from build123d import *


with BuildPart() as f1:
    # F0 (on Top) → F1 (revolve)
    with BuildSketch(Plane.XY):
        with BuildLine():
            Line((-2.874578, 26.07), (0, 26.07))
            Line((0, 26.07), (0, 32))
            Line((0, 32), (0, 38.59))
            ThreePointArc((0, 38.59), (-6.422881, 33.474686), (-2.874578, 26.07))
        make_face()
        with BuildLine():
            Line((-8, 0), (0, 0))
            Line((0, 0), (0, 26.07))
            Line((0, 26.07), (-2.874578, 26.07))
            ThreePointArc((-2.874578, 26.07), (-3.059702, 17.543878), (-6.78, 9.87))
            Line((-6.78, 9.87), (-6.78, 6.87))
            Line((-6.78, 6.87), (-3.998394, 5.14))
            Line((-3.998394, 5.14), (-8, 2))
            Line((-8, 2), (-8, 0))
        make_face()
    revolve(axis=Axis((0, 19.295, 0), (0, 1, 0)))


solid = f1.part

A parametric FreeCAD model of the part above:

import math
import FreeCAD as App
import Part
import Sketcher

V = App.Vector
Q = App.Units.Quantity

doc = App.newDocument("Part")
params = doc.addObject("Spreadsheet::Sheet", "Params")
for row, (alias, value) in enumerate([
    ("sketch1_radius", "20.000002 mm"),
    ("sketch1_width", "8 mm"),
    ("sketch1_height", "3 mm"),
    ("sketch1_height2", "2 mm"),
    ("sketch1_radius2", "6.59 mm"),
    ("revolution_angle", "360 deg"),
], start=1):
    params.set(f"A{row}", alias)
    params.set(f"B{row}", "=" + value)
    params.setAlias(f"B{row}", alias)

body = doc.addObject("PartDesign::Body", "Body")

# Sketch on XY plane
sketch1 = doc.addObject("Sketcher::SketchObject", "Sketch")
body.addObject(sketch1)
sketch1.AttachmentSupport = (doc.XY_Plane, [""])
sketch1.MapMode = "FlatFace"
sketch1.addGeometry([
    Part.ArcOfCircle(Part.Circle(V(0, 32, 0), V(0, 0, 1), 6.6), math.radians(90), math.radians(244)),  # 0
    Part.ArcOfCircle(Part.Circle(V(-22.5, 22.2, 0), V(0, 0, 1), 20), math.radians(-38), math.radians(11)),  # 1
    Part.LineSegment(V(-6.8, 9.9, 0), V(-6.8, 6.9, 0)),  # 2
    Part.LineSegment(V(-6.8, 6.9, 0), V(-4, 5.1, 0)),  # 3
    Part.LineSegment(V(-4, 5.1, 0), V(-8, 2, 0)),  # 4
    Part.LineSegment(V(-8, 2, 0), V(-8, 0, 0)),  # 5
    Part.LineSegment(V(-8, 0, 0), V(0, 0, 0)),  # 6
    Part.LineSegment(V(0, 0, 0), V(0, 38.6, 0)),  # 7
], False)
sketch1.addConstraint([
    Sketcher.Constraint("Coincident", 0, 2, 1, 2),
    Sketcher.Constraint("Coincident", 1, 1, 2, 1),
    Sketcher.Constraint("Coincident", 2, 2, 3, 1),
    Sketcher.Constraint("Coincident", 3, 2, 4, 1),
    Sketcher.Constraint("Coincident", 4, 2, 5, 1),
    Sketcher.Constraint("Coincident", 5, 2, 6, 1),
    Sketcher.Constraint("Coincident", 6, 2, 7, 1),
    Sketcher.Constraint("Coincident", 7, 2, 0, 1),
    Sketcher.Constraint("Vertical", 2),
    Sketcher.Constraint("Vertical", 5),
    Sketcher.Constraint("Horizontal", 6),
    Sketcher.Constraint("Vertical", 7),
    Sketcher.Constraint("Coincident", 6, 2, -1, 1),
    Sketcher.Constraint("PointOnObject", 0, 3, -2),
    Sketcher.Constraint("Radius", 1, Q("20.000002 mm")),
    Sketcher.Constraint("DistanceX", 6, 1, 6, 2, Q("8 mm")),
    Sketcher.Constraint("DistanceY", 2, 2, 2, 1, Q("3 mm")),
    Sketcher.Constraint("DistanceY", 5, 2, 5, 1, Q("2 mm")),
    Sketcher.Constraint("Radius", 0, Q("6.59 mm")),
    Sketcher.Constraint("DistanceY", -1, 1, 0, 3, Q("32 mm")),
    Sketcher.Constraint("DistanceY", 1, 1, 0, 2, Q("16.2 mm")),
    Sketcher.Constraint("DistanceY", -1, 1, 0, 2, Q("26.07 mm")),
    Sketcher.Constraint("DistanceX", 1, 1, -1, 1, Q("6.78 mm")),
    Sketcher.Constraint("DistanceY", -1, 1, 3, 2, Q("5.14 mm")),
    Sketcher.Constraint("DistanceX", 1, 3, 3, 2, Q("18.504301 mm")),
])
sketch1.setExpression("Constraints[14]", "Params.sketch1_radius")
sketch1.setExpression("Constraints[15]", "Params.sketch1_width")
sketch1.setExpression("Constraints[16]", "Params.sketch1_height")
sketch1.setExpression("Constraints[17]", "Params.sketch1_height2")
sketch1.setExpression("Constraints[18]", "Params.sketch1_radius2")
revolution = doc.addObject("PartDesign::Revolution", "Revolution")
body.addObject(revolution)
revolution.Profile = sketch1
revolution.ReferenceAxis = (sketch1, ["V_Axis"])
revolution.setExpression("Angle", "Params.revolution_angle")

doc.recompute()
